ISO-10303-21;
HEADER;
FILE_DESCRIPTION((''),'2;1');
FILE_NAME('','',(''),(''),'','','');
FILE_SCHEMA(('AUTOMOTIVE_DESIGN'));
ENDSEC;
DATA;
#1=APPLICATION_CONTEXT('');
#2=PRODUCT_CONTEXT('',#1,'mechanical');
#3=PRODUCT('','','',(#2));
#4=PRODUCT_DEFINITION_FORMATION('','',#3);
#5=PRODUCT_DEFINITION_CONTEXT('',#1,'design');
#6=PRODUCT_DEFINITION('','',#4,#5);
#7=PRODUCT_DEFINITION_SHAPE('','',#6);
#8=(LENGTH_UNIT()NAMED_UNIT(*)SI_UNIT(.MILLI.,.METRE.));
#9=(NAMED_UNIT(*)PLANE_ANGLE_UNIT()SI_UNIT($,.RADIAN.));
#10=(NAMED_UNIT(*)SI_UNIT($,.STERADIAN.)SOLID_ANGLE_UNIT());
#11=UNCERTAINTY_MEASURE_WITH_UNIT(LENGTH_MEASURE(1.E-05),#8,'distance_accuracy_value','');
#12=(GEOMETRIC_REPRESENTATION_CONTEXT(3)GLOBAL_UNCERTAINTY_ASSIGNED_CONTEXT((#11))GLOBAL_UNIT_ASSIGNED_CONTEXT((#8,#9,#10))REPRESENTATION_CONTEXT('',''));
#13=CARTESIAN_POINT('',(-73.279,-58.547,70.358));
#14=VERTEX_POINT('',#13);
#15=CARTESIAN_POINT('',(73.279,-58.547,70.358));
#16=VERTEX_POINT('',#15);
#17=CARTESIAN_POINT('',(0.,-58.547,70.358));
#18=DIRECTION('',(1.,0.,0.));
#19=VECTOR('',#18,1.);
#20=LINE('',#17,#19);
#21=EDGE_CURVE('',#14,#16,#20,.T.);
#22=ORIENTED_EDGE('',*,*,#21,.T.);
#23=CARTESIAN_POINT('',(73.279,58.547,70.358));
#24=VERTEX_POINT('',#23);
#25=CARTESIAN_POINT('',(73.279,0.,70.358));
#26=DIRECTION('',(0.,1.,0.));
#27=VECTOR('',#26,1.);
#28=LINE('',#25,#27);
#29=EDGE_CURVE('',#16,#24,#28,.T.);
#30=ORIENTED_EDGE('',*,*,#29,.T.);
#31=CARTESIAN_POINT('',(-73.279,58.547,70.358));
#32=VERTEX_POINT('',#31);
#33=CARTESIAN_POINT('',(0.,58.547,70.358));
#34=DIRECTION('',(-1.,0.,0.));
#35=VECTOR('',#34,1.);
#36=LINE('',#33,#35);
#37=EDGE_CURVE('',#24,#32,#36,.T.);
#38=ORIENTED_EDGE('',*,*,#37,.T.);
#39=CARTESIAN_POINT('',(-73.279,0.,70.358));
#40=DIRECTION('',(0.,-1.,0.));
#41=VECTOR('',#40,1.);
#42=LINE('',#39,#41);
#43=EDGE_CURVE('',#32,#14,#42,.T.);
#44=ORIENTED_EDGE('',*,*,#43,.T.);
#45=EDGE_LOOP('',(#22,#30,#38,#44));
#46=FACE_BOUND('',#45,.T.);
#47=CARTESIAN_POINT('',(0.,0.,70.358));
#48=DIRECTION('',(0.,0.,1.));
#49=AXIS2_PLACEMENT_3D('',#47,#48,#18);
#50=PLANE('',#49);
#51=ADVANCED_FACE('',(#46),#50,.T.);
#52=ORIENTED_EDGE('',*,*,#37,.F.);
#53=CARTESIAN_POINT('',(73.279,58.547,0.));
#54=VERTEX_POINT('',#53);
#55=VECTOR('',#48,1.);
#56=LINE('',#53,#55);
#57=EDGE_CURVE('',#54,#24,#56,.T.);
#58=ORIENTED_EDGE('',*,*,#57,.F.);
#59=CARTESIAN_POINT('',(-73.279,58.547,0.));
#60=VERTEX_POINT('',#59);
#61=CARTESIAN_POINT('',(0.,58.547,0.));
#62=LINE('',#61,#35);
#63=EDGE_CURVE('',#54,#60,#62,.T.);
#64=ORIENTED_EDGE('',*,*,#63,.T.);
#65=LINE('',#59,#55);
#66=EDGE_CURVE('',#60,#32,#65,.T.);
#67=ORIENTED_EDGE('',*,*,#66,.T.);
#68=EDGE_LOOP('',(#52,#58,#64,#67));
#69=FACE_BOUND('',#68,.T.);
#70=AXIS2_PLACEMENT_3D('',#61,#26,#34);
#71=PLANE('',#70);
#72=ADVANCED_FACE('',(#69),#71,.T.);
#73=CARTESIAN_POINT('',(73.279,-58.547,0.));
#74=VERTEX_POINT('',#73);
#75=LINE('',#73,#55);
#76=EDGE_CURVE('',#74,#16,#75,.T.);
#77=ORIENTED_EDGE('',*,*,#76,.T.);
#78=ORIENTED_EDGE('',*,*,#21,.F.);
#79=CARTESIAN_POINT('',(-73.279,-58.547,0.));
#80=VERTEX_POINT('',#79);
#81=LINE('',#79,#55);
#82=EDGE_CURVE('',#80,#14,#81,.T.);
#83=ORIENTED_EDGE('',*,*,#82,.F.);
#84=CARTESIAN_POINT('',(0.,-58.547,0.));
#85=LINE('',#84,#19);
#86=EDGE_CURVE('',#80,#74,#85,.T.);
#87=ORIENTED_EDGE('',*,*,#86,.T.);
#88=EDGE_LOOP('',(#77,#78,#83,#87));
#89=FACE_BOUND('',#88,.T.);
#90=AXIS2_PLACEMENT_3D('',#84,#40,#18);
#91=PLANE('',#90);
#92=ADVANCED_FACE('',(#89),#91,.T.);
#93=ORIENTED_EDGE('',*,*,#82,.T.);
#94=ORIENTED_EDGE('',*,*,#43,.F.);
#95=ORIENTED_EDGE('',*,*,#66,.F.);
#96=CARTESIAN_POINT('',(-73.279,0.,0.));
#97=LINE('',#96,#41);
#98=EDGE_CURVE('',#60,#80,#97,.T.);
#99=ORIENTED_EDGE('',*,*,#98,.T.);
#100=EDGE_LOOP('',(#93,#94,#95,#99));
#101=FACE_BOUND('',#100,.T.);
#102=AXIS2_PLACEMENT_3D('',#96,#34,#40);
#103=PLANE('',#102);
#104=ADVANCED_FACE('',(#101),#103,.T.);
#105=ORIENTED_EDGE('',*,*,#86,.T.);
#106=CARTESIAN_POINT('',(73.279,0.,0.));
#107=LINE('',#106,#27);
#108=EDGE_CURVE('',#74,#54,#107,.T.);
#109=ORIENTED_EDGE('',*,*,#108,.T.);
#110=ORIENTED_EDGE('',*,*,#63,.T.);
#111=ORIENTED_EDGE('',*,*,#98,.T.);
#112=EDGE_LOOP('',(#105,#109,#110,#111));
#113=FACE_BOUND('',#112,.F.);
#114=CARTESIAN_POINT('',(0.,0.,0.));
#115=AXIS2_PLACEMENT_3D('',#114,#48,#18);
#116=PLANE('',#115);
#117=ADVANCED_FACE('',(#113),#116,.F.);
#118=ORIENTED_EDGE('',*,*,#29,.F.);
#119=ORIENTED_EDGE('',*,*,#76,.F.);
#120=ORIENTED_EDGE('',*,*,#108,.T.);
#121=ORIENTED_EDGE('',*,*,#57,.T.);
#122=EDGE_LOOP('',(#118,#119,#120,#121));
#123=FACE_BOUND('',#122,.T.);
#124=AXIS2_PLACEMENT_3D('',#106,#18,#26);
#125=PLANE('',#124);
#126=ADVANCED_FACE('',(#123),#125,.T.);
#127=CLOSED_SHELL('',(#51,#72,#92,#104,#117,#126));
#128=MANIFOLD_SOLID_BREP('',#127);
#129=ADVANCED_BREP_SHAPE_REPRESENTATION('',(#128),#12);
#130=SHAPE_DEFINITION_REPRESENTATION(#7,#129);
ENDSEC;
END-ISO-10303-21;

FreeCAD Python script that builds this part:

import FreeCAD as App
import Part
import Sketcher
Q = App.Units.Quantity


def add_polygon(sketch, points):
    """Adds a closed chain of lines whose ends are joined by coincident constraints."""
    first, n = sketch.GeometryCount, len(points)
    for a, b in zip(points, points[1:] + points[:1]):
        sketch.addGeometry(Part.LineSegment(App.Vector(*a, 0), App.Vector(*b, 0)), False)
    for i in range(n):
        sketch.addConstraint(Sketcher.Constraint("Coincident", first + i, 2, first + (i + 1) % n, 1))

doc = App.newDocument("Part")
body = doc.addObject("PartDesign::Body", "Body")

# Sketch on XY plane
sketch1 = body.newObject("Sketcher::SketchObject", "Sketch")
sketch1.AttachmentSupport = (doc.getObject("XY_Plane"), [""])
sketch1.MapMode = "FlatFace"
add_polygon(sketch1, [(-73.279, 58.547), (-73.279, -58.547), (73.279, -58.547), (73.279, 58.547)])  # lines 0-3
sketch1.addConstraint(Sketcher.Constraint("Vertical", 0))
sketch1.addConstraint(Sketcher.Constraint("Horizontal", 1))
sketch1.addConstraint(Sketcher.Constraint("Vertical", 2))
sketch1.addConstraint(Sketcher.Constraint("Horizontal", 3))
sketch1.addConstraint(Sketcher.Constraint("Symmetric", 0, 2, 2, 2, -1, 1))
sketch1.addConstraint(Sketcher.Constraint("DistanceX", 1, 1, 1, 2, Q("5.77 in")))
sketch1.addConstraint(Sketcher.Constraint("DistanceY", 0, 2, 0, 1, Q("4.61 in")))

# Sketch on XZ plane
sketch2 = body.newObject("Sketcher::SketchObject", "Sketch001")
sketch2.AttachmentSupport = (doc.getObject("XZ_Plane"), [""])
sketch2.MapMode = "FlatFace"
sketch2.addGeometry(Part.LineSegment(App.Vector(0, 0, 0), App.Vector(0, 70.358, 0)), False)
sketch2.addConstraint(Sketcher.Constraint("Vertical", 0))
sketch2.addConstraint(Sketcher.Constraint("Coincident", 0, 1, -1, 1))
sketch2.addConstraint(Sketcher.Constraint("DistanceY", 0, 1, 0, 2, Q("2.77 in")))
doc.recompute()

additivepipe = body.newObject("PartDesign::AdditivePipe", "AdditivePipe")
additivepipe.Profile = sketch1
additivepipe.Spine = (sketch2, ["Edge1"])

doc.recompute()
